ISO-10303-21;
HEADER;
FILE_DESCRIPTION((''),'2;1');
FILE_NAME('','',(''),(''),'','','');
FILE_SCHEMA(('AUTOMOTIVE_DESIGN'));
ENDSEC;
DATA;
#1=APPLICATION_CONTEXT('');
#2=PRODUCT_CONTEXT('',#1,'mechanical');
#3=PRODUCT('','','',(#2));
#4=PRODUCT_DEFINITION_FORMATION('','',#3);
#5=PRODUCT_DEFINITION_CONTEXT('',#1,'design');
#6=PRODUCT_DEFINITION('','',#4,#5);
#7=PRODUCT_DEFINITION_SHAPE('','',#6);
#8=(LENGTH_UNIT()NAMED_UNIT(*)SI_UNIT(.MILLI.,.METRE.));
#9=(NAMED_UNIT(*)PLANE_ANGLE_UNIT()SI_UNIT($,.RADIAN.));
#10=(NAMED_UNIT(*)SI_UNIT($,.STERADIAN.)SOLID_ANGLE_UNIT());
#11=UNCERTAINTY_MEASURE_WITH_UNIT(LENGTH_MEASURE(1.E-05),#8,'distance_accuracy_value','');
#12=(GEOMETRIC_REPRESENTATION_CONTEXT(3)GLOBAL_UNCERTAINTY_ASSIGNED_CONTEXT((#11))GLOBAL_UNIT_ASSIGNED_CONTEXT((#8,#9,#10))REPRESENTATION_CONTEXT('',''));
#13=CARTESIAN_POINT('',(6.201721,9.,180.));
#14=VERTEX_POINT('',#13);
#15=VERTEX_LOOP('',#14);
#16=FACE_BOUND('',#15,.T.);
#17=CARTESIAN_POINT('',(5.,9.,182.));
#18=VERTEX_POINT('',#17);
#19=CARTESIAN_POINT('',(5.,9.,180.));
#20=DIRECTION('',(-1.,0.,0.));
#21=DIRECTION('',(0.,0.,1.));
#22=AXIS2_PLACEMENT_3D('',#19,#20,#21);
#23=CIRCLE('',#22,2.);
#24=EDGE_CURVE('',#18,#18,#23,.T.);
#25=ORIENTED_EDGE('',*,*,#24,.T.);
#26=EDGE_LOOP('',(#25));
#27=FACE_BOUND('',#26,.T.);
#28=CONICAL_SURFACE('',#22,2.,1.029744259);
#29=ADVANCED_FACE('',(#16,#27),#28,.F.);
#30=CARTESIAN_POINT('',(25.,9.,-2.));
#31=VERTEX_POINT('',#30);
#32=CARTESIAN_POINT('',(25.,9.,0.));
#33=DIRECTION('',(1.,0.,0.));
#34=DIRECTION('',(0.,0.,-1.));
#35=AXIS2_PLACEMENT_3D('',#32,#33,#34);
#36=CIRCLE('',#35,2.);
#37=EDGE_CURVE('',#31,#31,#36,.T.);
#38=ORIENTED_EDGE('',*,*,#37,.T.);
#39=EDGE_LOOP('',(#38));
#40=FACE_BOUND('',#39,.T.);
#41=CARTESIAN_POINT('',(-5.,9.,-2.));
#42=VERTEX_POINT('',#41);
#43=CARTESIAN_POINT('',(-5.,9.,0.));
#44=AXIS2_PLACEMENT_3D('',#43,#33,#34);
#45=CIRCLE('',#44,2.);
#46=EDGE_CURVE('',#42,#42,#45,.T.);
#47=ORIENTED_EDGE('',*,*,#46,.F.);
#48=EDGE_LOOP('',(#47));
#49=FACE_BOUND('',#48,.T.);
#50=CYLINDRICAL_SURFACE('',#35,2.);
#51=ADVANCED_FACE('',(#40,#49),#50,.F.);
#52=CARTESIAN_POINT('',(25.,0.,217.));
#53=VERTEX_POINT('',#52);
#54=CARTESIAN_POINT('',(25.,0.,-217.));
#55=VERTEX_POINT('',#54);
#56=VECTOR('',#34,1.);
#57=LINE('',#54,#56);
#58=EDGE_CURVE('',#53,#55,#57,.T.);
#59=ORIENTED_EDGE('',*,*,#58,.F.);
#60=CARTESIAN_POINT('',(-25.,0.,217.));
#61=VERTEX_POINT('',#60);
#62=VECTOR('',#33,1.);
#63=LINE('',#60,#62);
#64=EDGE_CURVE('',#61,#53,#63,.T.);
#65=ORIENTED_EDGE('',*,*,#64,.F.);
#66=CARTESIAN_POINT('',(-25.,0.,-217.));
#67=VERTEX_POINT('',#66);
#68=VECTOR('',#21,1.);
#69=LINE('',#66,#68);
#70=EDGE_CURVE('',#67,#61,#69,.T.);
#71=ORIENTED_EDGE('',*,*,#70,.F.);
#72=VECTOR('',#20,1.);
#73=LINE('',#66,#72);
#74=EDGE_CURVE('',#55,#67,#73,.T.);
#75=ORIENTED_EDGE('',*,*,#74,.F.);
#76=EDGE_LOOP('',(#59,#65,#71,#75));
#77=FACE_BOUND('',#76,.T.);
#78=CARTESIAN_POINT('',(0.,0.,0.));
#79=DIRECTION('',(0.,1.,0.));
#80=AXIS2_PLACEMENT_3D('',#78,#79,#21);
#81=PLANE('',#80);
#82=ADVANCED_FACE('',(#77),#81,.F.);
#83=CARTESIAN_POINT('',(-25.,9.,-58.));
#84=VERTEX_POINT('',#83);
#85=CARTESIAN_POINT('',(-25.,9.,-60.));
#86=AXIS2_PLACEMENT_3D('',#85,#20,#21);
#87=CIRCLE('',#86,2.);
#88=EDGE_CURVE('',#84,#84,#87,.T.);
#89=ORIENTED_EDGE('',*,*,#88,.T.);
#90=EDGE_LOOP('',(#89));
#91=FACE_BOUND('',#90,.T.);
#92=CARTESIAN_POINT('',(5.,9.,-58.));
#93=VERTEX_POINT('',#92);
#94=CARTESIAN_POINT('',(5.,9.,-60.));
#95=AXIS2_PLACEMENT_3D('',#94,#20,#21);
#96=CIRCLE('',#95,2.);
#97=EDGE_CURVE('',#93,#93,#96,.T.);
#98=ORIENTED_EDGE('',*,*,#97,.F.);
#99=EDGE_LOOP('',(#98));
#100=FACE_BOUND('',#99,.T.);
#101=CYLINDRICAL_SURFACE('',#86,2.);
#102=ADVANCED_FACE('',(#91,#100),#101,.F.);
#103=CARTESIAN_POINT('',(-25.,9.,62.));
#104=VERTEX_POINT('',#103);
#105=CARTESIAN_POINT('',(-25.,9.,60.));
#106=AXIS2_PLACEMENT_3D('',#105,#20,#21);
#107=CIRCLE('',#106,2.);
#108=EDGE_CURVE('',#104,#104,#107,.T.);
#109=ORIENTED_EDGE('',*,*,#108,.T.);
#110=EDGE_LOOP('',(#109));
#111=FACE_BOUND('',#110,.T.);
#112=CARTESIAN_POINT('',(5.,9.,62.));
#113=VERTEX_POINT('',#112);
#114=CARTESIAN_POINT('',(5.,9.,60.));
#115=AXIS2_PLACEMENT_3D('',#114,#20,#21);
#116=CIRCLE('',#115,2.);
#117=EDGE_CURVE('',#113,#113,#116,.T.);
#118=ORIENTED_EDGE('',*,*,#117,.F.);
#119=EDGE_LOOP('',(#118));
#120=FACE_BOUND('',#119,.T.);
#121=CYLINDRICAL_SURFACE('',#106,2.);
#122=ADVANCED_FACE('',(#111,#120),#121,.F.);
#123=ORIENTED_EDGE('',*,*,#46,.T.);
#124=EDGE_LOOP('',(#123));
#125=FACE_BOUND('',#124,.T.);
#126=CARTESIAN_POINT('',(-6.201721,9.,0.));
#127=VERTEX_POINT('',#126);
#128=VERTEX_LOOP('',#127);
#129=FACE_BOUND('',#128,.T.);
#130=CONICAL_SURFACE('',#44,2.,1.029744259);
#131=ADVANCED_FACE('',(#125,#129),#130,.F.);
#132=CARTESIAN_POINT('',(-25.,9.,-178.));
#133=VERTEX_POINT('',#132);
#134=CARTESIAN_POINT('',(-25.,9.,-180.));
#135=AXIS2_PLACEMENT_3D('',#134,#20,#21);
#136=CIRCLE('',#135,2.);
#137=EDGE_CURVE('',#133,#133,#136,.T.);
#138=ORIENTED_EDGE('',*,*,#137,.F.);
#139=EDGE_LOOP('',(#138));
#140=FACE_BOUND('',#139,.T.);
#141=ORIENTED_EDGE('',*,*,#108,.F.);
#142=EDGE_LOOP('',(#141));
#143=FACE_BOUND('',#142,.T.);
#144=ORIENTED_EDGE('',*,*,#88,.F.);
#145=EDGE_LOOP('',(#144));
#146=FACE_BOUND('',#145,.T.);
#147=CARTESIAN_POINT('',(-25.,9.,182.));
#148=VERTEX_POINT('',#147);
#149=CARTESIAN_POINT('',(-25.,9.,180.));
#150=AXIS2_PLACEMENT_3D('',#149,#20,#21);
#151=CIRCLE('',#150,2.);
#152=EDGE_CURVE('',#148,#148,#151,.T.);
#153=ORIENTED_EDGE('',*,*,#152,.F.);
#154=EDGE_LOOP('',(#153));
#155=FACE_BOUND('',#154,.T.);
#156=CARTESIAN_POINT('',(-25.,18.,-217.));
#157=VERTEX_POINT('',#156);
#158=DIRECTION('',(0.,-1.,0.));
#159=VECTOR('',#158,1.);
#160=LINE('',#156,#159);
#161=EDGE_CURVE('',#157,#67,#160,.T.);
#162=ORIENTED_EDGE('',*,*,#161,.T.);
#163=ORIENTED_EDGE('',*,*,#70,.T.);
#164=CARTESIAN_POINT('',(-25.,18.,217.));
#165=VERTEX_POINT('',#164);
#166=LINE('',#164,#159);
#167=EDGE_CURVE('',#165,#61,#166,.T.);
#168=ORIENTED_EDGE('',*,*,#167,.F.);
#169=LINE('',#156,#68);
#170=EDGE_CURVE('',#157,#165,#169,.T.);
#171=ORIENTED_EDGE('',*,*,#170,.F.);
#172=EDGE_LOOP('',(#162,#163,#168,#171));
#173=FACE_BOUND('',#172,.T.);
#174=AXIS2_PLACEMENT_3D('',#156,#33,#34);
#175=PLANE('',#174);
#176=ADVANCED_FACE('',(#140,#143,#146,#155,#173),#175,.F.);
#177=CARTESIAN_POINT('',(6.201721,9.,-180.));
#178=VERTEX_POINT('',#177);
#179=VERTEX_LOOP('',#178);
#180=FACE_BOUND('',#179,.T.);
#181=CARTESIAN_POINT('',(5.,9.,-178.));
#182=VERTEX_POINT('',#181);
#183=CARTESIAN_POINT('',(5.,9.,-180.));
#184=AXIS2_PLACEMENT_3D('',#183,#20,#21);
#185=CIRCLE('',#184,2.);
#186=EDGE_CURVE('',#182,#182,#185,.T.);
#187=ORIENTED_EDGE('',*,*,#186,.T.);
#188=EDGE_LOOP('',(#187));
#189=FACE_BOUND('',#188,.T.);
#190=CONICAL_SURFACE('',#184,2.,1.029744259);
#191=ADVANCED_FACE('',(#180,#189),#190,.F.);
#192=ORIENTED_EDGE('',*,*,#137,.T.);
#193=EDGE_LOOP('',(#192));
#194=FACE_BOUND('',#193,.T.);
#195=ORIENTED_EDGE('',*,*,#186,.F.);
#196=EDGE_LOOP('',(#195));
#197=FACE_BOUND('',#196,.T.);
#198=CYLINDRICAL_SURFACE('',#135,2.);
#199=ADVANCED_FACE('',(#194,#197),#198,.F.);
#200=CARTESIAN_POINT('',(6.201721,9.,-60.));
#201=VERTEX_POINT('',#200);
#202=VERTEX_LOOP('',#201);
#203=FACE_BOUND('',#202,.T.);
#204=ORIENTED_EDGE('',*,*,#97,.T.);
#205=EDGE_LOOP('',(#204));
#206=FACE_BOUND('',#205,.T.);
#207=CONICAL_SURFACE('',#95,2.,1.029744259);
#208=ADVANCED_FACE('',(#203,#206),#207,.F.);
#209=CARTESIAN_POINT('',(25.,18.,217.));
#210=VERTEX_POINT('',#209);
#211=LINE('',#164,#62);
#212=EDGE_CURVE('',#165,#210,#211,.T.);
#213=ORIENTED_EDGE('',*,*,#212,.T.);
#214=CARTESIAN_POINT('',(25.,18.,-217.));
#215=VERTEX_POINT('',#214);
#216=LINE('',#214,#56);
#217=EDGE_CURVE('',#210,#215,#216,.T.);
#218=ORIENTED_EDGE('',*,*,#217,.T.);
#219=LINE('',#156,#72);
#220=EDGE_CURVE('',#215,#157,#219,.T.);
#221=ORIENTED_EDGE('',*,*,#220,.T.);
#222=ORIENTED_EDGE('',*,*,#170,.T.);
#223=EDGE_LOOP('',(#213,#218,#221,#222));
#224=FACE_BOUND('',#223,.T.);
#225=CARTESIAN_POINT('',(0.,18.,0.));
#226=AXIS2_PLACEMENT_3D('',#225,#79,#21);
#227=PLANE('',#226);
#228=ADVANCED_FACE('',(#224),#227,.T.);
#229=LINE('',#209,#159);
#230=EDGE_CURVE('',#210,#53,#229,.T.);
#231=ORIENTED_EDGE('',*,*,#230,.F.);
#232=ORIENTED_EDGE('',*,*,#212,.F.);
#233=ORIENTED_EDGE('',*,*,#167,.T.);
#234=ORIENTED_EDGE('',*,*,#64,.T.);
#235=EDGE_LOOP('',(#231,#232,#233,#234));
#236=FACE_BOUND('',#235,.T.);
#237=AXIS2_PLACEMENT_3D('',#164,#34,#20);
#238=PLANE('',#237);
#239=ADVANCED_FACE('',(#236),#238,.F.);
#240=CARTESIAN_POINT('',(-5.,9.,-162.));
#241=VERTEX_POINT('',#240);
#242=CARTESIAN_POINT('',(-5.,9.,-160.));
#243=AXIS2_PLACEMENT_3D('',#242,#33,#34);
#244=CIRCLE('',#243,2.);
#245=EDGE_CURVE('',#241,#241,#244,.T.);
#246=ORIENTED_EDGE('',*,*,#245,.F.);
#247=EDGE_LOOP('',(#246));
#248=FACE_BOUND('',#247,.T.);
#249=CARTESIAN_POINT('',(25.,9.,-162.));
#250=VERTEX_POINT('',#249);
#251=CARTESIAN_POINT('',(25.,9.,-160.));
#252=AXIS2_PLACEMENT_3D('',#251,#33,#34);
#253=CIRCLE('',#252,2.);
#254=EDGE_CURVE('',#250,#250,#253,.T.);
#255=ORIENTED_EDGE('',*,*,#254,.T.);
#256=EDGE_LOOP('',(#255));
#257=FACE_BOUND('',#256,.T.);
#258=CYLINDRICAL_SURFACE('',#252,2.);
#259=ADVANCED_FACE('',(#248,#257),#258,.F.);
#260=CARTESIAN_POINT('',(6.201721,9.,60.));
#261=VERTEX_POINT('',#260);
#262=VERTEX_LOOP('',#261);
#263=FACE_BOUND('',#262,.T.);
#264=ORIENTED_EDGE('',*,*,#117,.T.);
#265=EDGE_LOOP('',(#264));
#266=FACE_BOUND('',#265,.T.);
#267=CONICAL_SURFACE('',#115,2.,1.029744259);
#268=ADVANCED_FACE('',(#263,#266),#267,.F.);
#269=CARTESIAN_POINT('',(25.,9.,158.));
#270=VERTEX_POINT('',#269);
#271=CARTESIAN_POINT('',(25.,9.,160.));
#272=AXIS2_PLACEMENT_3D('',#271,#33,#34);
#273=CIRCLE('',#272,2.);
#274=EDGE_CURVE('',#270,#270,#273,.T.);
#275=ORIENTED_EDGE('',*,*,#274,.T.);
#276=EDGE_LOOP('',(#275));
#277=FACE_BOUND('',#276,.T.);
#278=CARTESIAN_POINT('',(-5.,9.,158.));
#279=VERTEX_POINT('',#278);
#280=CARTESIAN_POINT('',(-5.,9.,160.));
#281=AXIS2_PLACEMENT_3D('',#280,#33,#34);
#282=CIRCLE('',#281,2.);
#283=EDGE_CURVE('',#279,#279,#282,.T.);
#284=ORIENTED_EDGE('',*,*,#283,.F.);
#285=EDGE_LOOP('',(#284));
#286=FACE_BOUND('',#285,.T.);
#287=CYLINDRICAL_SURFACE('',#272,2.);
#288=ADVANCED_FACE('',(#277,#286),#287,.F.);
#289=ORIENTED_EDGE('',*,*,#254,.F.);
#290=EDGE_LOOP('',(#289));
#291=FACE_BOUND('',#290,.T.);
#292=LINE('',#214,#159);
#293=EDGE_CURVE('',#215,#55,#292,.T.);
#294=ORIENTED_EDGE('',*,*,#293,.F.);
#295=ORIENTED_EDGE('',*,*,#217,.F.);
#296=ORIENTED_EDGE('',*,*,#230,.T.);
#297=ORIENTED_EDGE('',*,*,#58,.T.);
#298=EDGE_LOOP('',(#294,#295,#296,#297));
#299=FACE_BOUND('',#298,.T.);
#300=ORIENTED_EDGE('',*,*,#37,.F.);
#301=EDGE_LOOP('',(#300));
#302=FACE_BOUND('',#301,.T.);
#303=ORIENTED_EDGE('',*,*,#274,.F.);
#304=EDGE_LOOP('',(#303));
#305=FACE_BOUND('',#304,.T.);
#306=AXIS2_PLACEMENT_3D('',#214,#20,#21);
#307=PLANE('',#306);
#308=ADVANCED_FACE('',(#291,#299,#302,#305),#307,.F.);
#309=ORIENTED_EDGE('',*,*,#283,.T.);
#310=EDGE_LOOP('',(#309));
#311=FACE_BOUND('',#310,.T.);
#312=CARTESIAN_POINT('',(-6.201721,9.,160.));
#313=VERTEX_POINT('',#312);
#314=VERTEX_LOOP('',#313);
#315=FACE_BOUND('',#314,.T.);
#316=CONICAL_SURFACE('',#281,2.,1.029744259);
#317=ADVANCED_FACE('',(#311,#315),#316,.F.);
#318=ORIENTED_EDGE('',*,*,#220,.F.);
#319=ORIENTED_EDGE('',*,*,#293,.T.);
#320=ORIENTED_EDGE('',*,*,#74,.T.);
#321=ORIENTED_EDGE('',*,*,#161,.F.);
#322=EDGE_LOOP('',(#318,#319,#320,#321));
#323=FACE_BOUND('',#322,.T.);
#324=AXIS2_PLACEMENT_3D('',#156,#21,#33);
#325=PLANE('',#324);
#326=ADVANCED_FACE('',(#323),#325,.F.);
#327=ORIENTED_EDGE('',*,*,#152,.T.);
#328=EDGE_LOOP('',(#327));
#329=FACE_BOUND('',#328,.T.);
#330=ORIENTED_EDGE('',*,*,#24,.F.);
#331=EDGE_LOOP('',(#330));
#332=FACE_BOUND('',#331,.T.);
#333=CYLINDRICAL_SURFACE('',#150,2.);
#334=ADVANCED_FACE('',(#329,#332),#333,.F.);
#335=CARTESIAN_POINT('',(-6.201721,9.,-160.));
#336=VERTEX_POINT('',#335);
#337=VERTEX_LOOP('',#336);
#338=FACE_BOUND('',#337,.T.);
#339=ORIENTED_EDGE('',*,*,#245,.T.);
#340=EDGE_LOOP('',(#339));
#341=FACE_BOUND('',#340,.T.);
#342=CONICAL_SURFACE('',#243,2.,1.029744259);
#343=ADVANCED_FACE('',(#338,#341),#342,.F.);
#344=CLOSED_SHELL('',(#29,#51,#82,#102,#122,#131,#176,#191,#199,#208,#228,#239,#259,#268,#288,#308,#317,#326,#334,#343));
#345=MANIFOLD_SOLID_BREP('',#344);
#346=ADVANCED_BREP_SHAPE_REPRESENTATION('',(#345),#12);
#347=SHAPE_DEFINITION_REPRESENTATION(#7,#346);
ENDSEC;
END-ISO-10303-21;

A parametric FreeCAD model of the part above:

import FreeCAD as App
import Part
import Sketcher
from FreeCAD import Vector
Q = App.Units.Quantity

doc = App.newDocument("Part")
body = doc.addObject("PartDesign::Body", "Body")

# Sketch on XZ plane
sketch1 = body.newObject("Sketcher::SketchObject", "Sketch")
sketch1.AttachmentSupport = (doc.getObject("XZ_Plane"), [""])
sketch1.MapMode = "FlatFace"
sketch1.addGeometry(Part.LineSegment(Vector(-25, -217, 0), Vector(-25, 217, 0)), False)
sketch1.addGeometry(Part.LineSegment(Vector(-25, 217, 0), Vector(25, 217, 0)), False)
sketch1.addGeometry(Part.LineSegment(Vector(25, 217, 0), Vector(25, -217, 0)), False)
sketch1.addGeometry(Part.LineSegment(Vector(25, -217, 0), Vector(-25, -217, 0)), False)
sketch1.addConstraint(Sketcher.Constraint("Coincident", 0, 2, 1, 1))
sketch1.addConstraint(Sketcher.Constraint("Coincident", 1, 2, 2, 1))
sketch1.addConstraint(Sketcher.Constraint("Coincident", 2, 2, 3, 1))
sketch1.addConstraint(Sketcher.Constraint("Coincident", 3, 2, 0, 1))
sketch1.addConstraint(Sketcher.Constraint("Vertical", 0))
sketch1.addConstraint(Sketcher.Constraint("Horizontal", 1))
sketch1.addConstraint(Sketcher.Constraint("Vertical", 2))
sketch1.addConstraint(Sketcher.Constraint("Horizontal", 3))
sketch1.addConstraint(Sketcher.Constraint("Symmetric", 0, 2, 2, 2, -1, 1))
sketch1.addConstraint(Sketcher.Constraint("DistanceX", 1, 1, 1, 2, Q("50 mm")))
sketch1.addConstraint(Sketcher.Constraint("DistanceY", 0, 1, 0, 2, Q("434 mm")))
pad1 = body.newObject("PartDesign::Pad", "Pad")
pad1.Profile = sketch1
pad1.Length = 18
pad1.Reversed = True

# Sketch on YZ plane
sketch2 = body.newObject("Sketcher::SketchObject", "Sketch001")
sketch2.AttachmentSupport = (doc.getObject("YZ_Plane"), [""])
sketch2.MapMode = "FlatFace"
sketch2.AttachmentOffset = App.Placement(Vector(0, 0, 25), App.Rotation())
sketch2.addGeometry(Part.Circle(Vector(9, -160, 0), Vector(0, 0, 1), 2), False)
sketch2.addGeometry(Part.Circle(Vector(9, 0, 0), Vector(0, 0, 1), 2), False)
sketch2.addGeometry(Part.Circle(Vector(9, 160, 0), Vector(0, 0, 1), 2), False)
sketch2.addConstraint(Sketcher.Constraint("Equal", 0, 1))
sketch2.addConstraint(Sketcher.Constraint("Equal", 1, 2))
sketch2.addConstraint(Sketcher.Constraint("Symmetric", 0, 3, 2, 3, -1))
sketch2.addConstraint(Sketcher.Constraint("PointOnObject", 1, 3, -1))
sketch2.addConstraint(Sketcher.Constraint("Vertical", 0, 3, 1, 3))
sketch2.addConstraint(Sketcher.Constraint("Diameter", 0, Q("4 mm")))
sketch2.addConstraint(Sketcher.Constraint("DistanceX", -1, 1, 0, 3, Q("9 mm")))
sketch2.addConstraint(Sketcher.Constraint("DistanceY", 0, 3, -1, 1, Q("160 mm")))
doc.recompute()
hole = body.newObject("PartDesign::Hole", "Hole")
hole.Profile = sketch2
hole.ThreadType = "None"
hole.Diameter = 4
hole.DepthType = "Dimension"
hole.Depth = 30
hole.DrillPoint = "Angled"
hole.DrillPointAngle = 118

# Sketch on YZ plane
sketch3 = body.newObject("Sketcher::SketchObject", "Sketch002")
sketch3.AttachmentSupport = (doc.getObject("YZ_Plane"), [""])
sketch3.MapMode = "FlatFace"
sketch3.AttachmentOffset = App.Placement(Vector(0, 0, -25), App.Rotation())
sketch3.addGeometry(Part.Circle(Vector(9, 180, 0), Vector(0, 0, 1), 2), False)
sketch3.addGeometry(Part.Circle(Vector(9, 60, 0), Vector(0, 0, 1), 2), False)
sketch3.addGeometry(Part.Circle(Vector(9, -60, 0), Vector(0, 0, 1), 2), False)
sketch3.addGeometry(Part.Circle(Vector(9, -180, 0), Vector(0, 0, 1), 2), False)
sketch3.addConstraint(Sketcher.Constraint("Equal", 0, 1))
sketch3.addConstraint(Sketcher.Constraint("Equal", 1, 2))
sketch3.addConstraint(Sketcher.Constraint("Equal", 2, 3))
sketch3.addConstraint(Sketcher.Constraint("Symmetric", 1, 3, 2, 3, -1))
sketch3.addConstraint(Sketcher.Constraint("Symmetric", 0, 3, 3, 3, -1))
sketch3.addConstraint(Sketcher.Constraint("Vertical", 0, 3, 1, 3))
sketch3.addConstraint(Sketcher.Constraint("Diameter", 0, Q("4 mm")))
sketch3.addConstraint(Sketcher.Constraint("DistanceX", -1, 1, 0, 3, Q("9 mm")))
sketch3.addConstraint(Sketcher.Constraint("DistanceY", -1, 1, 0, 3, Q("180 mm")))
sketch3.addConstraint(Sketcher.Constraint("DistanceY", -1, 1, 1, 3, Q("60 mm")))
doc.recompute()
hole2 = body.newObject("PartDesign::Hole", "Hole001")
hole2.Profile = sketch3
hole2.ThreadType = "None"
hole2.Diameter = 4
hole2.DepthType = "Dimension"
hole2.Depth = 30
hole2.DrillPoint = "Angled"
hole2.DrillPointAngle = 118
hole2.Reversed = True

doc.recompute()
